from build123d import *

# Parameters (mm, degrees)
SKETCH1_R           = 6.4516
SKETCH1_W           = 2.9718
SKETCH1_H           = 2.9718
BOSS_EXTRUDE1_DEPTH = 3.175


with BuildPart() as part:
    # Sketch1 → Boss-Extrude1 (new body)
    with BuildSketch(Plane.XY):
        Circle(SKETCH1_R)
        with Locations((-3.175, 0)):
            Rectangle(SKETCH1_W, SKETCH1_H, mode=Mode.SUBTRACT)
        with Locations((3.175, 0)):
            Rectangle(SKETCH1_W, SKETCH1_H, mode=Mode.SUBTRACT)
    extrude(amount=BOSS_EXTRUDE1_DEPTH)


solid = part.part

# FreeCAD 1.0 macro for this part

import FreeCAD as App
import Part
import Sketcher
from FreeCAD import Vector
Q = App.Units.Quantity


def add_polygon(sketch, points):
    """Adds a closed chain of lines whose ends are joined by coincident constraints."""
    first, n = sketch.GeometryCount, len(points)
    for a, b in zip(points, points[1:] + points[:1]):
        sketch.addGeometry(Part.LineSegment(App.Vector(*a, 0), App.Vector(*b, 0)), False)
    for i in range(n):
        sketch.addConstraint(Sketcher.Constraint("Coincident", first + i, 2, first + (i + 1) % n, 1))

doc = App.newDocument("Part")
body = doc.addObject("PartDesign::Body", "Body")

# Sketch on XY plane
sketch1 = body.newObject("Sketcher::SketchObject", "Sketch")
sketch1.AttachmentSupport = (doc.getObject("XY_Plane"), [""])
sketch1.MapMode = "FlatFace"
sketch1.addGeometry(Part.Circle(Vector(0, 0, 0), Vector(0, 0, 1), 6.5), False)  # 0
add_polygon(sketch1, [(-1.7, -1.5), (-4.7, -1.5), (-4.7, 1.5), (-1.7, 1.5)])  # lines 1-4
add_polygon(sketch1, [(4.7, -1.5), (1.7, -1.5), (1.7, 1.5), (4.7, 1.5)])  # lines 5-8
sketch1.addConstraint(Sketcher.Constraint("Horizontal", 1))
sketch1.addConstraint(Sketcher.Constraint("Vertical", 2))
sketch1.addConstraint(Sketcher.Constraint("Horizontal", 3))
sketch1.addConstraint(Sketcher.Constraint("Vertical", 4))
sketch1.addConstraint(Sketcher.Constraint("Horizontal", 5))
sketch1.addConstraint(Sketcher.Constraint("Vertical", 6))
sketch1.addConstraint(Sketcher.Constraint("Horizontal", 7))
sketch1.addConstraint(Sketcher.Constraint("Vertical", 8))
sketch1.addConstraint(Sketcher.Constraint("Coincident", 0, 3, -1, 1))
sketch1.addConstraint(Sketcher.Constraint("Symmetric", 3, 2, 5, 2, -1, 1))
sketch1.addConstraint(Sketcher.Constraint("Symmetric", 1, 2, 7, 2, -1, 1))
sketch1.addConstraint(Sketcher.Constraint("Horizontal", 4, 2, 5, 2))
sketch1.addConstraint(Sketcher.Constraint("Equal", 7, 2))
sketch1.addConstraint(Sketcher.Constraint("Diameter", 0, Q("0.508 in")))
sketch1.addConstraint(Sketcher.Constraint("DistanceX", 1, 2, 1, 1, Q("0.117 in")))
sketch1.addConstraint(Sketcher.Constraint("DistanceX", 1, 2, 5, 2, Q("0.25 in")))
pad1 = body.newObject("PartDesign::Pad", "Pad")
pad1.Profile = sketch1
pad1.Length = Q("0.125 in")

doc.recompute()
